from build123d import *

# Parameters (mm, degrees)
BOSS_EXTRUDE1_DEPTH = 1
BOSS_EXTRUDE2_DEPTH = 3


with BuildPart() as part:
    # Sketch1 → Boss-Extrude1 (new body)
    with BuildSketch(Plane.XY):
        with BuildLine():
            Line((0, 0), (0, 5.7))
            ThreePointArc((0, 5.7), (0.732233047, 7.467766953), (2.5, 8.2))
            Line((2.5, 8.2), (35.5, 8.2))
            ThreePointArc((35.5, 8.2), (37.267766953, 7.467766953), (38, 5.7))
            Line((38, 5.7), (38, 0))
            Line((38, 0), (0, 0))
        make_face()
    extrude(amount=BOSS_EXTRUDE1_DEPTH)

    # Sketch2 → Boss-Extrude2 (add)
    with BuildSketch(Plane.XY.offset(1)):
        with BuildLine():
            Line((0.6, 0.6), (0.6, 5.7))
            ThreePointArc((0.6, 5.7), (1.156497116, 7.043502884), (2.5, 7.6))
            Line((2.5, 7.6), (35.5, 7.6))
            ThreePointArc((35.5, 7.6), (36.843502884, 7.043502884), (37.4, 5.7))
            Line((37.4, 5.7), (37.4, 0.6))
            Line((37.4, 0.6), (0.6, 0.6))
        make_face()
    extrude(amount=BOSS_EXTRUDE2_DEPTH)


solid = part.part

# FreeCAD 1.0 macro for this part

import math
import FreeCAD as App
import Part
import Sketcher
from FreeCAD import Vector
Q = App.Units.Quantity

doc = App.newDocument("Part")
body = doc.addObject("PartDesign::Body", "Body")

sketch1 = body.newObject("Sketcher::SketchObject", "Sketch")
sketch1.AttachmentSupport = (doc.getObject("XY_Plane"), [""])
sketch1.MapMode = "FlatFace"
sketch1.addGeometry(Part.LineSegment(Vector(0, 5.7, 0), Vector(0, 0, 0)), False)
sketch1.addGeometry(Part.LineSegment(Vector(0, 0, 0), Vector(38, 0, 0)), False)
sketch1.addGeometry(Part.LineSegment(Vector(38, 0, 0), Vector(38, 5.7, 0)), False)
sketch1.addGeometry(Part.ArcOfCircle(Part.Circle(Vector(35.5, 5.7, 0), Vector(0, 0, 1), 2.5), math.radians(0), math.radians(90)), False)
sketch1.addGeometry(Part.LineSegment(Vector(35.5, 8.2, 0), Vector(2.5, 8.2, 0)), False)
sketch1.addGeometry(Part.ArcOfCircle(Part.Circle(Vector(2.5, 5.7, 0), Vector(0, 0, 1), 2.5), math.radians(90), math.radians(180)), False)
sketch1.addConstraint(Sketcher.Constraint("Coincident", 0, 2, 1, 1))
sketch1.addConstraint(Sketcher.Constraint("Coincident", 1, 2, 2, 1))
sketch1.addConstraint(Sketcher.Constraint("Tangent", 2, 2, 3, 1))
sketch1.addConstraint(Sketcher.Constraint("Tangent", 3, 2, 4, 1))
sketch1.addConstraint(Sketcher.Constraint("Tangent", 4, 2, 5, 1))
sketch1.addConstraint(Sketcher.Constraint("Tangent", 5, 2, 0, 1))
sketch1.addConstraint(Sketcher.Constraint("Vertical", 0))
sketch1.addConstraint(Sketcher.Constraint("Horizontal", 1))
sketch1.addConstraint(Sketcher.Constraint("Vertical", 2))
sketch1.addConstraint(Sketcher.Constraint("Horizontal", 4))
sketch1.addConstraint(Sketcher.Constraint("Coincident", 0, 2, -1, 1))
sketch1.addConstraint(Sketcher.Constraint("Equal", 3, 5))
sketch1.addConstraint(Sketcher.Constraint("Radius", 3, Q("2.5 mm")))
sketch1.addConstraint(Sketcher.Constraint("DistanceX", 1, 1, 1, 2, Q("38 mm")))
sketch1.addConstraint(Sketcher.Constraint("DistanceY", 0, 2, 0, 1, Q("5.7 mm")))
pad1 = body.newObject("PartDesign::Pad", "Pad")
pad1.Profile = sketch1
pad1.Length = 1

sketch2 = body.newObject("Sketcher::SketchObject", "Sketch001")
sketch2.AttachmentSupport = (doc.getObject("XY_Plane"), [""])
sketch2.MapMode = "FlatFace"
sketch2.AttachmentOffset = App.Placement(Vector(0, 0, 1), App.Rotation())
sketch2.addGeometry(Part.LineSegment(Vector(0.6, 5.7, 0), Vector(0.6, 0.6, 0)), False)
sketch2.addGeometry(Part.LineSegment(Vector(0.6, 0.6, 0), Vector(37.4, 0.6, 0)), False)
sketch2.addGeometry(Part.LineSegment(Vector(37.4, 0.6, 0), Vector(37.4, 5.7, 0)), False)
sketch2.addGeometry(Part.ArcOfCircle(Part.Circle(Vector(35.5, 5.7, 0), Vector(0, 0, 1), 1.9), math.radians(0), math.radians(90)), False)
sketch2.addGeometry(Part.LineSegment(Vector(35.5, 7.6, 0), Vector(2.5, 7.6, 0)), False)
sketch2.addGeometry(Part.ArcOfCircle(Part.Circle(Vector(2.5, 5.7, 0), Vector(0, 0, 1), 1.9), math.radians(90), math.radians(180)), False)
sketch2.addConstraint(Sketcher.Constraint("Coincident", 0, 2, 1, 1))
sketch2.addConstraint(Sketcher.Constraint("Coincident", 1, 2, 2, 1))
sketch2.addConstraint(Sketcher.Constraint("Tangent", 2, 2, 3, 1))
sketch2.addConstraint(Sketcher.Constraint("Tangent", 3, 2, 4, 1))
sketch2.addConstraint(Sketcher.Constraint("Tangent", 4, 2, 5, 1))
sketch2.addConstraint(Sketcher.Constraint("Tangent", 5, 2, 0, 1))
sketch2.addConstraint(Sketcher.Constraint("Vertical", 0))
sketch2.addConstraint(Sketcher.Constraint("Horizontal", 1))
sketch2.addConstraint(Sketcher.Constraint("Vertical", 2))
sketch2.addConstraint(Sketcher.Constraint("Horizontal", 4))
sketch2.addConstraint(Sketcher.Constraint("Equal", 3, 5))
sketch2.addConstraint(Sketcher.Constraint("Radius", 3, Q("1.9 mm")))
sketch2.addConstraint(Sketcher.Constraint("DistanceX", 4, 2, 4, 1, Q("33 mm")))
sketch2.addConstraint(Sketcher.Constraint("DistanceY", 0, 2, 0, 1, Q("5.1 mm")))
sketch2.addConstraint(Sketcher.Constraint("DistanceX", -1, 1, 3, 3, Q("35.5 mm")))
sketch2.addConstraint(Sketcher.Constraint("DistanceY", -1, 1, 3, 3, Q("5.7 mm")))
pad2 = body.newObject("PartDesign::Pad", "Pad001")
pad2.Profile = sketch2
pad2.Length = 3

doc.recompute()
